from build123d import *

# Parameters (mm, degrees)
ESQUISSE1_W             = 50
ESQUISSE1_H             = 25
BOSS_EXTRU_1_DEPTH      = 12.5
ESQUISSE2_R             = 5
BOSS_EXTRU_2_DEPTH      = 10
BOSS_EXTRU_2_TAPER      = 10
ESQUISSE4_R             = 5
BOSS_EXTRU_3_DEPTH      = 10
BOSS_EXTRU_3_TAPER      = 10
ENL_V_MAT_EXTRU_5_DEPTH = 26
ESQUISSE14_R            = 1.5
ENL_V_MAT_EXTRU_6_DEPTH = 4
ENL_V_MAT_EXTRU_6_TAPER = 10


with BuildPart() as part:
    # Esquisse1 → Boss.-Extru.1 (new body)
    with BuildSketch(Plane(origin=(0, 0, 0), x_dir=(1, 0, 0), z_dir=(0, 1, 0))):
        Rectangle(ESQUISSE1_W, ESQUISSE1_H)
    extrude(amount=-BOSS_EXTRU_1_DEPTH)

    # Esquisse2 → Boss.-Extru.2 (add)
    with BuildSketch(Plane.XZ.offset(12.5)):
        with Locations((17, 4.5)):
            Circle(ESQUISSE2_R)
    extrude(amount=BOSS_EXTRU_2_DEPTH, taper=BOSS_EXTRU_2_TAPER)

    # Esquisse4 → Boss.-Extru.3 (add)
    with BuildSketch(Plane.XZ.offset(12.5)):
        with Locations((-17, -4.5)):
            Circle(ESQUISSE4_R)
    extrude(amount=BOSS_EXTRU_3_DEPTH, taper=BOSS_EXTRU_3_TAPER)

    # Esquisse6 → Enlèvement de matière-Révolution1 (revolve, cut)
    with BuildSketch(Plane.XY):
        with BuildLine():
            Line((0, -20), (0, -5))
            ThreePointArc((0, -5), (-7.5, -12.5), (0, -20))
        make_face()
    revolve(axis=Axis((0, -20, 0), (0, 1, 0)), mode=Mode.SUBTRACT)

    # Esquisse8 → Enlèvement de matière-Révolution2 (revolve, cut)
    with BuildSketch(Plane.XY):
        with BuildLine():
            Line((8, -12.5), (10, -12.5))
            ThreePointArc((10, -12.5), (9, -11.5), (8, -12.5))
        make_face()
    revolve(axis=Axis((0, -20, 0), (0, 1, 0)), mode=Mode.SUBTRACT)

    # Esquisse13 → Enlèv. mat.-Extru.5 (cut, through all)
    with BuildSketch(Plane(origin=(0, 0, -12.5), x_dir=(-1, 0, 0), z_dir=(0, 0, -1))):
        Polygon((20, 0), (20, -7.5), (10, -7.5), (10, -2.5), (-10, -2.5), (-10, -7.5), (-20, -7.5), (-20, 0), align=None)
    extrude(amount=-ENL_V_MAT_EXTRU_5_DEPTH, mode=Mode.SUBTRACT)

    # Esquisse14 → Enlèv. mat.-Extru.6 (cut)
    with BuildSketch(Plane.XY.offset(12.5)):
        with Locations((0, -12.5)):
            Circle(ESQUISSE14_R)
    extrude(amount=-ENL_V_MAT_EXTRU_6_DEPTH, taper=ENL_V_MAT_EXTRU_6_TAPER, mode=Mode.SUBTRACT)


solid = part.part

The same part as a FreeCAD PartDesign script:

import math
import FreeCAD as App
import Part
import Sketcher
from FreeCAD import Vector
Q = App.Units.Quantity

doc = App.newDocument("Part")
params = doc.addObject("Spreadsheet::Sheet", "Params")
for row, (alias, value) in enumerate([
    ("sketch1_width", "50 mm"),
    ("sketch1_height", "25 mm"),
    ("pad1_length", "12.5 mm"),
    ("sketch2_diameter", "10 mm"),
    ("pad2_length", "10 mm"),
    ("pad2_taper", "-10 deg"),
    ("sketch3_diameter", "10 mm"),
    ("pad3_length", "10 mm"),
    ("pad3_taper", "-10 deg"),
    ("sketch4_radius", "7.5 mm"),
    ("groove_angle", "360 deg"),
    ("sketch5_radius", "1 mm"),
    ("groove2_angle", "360 deg"),
    ("sketch6_width", "40 mm"),
    ("sketch6_width2", "10 mm"),
    ("sketch6_height", "5 mm"),
    ("sketch6_height2", "7.5 mm"),
    ("sketch7_diameter", "3 mm"),
    ("pocket2_length", "4 mm"),
    ("pocket2_taper", "-10 deg"),
], start=1):
    params.set(f"A{row}", alias)
    params.set(f"B{row}", "=" + value)
    params.setAlias(f"B{row}", alias)

body = doc.addObject("PartDesign::Body", "Body")

sketch1 = body.newObject("Sketcher::SketchObject", "Sketch")
sketch1.AttachmentSupport = (doc.getObject("XZ_Plane"), [""])
sketch1.MapMode = "FlatFace"
sketch1.addGeometry(Part.LineSegment(Vector(-25, -12, 0), Vector(-25, 12, 0)), False)
sketch1.addGeometry(Part.LineSegment(Vector(-25, 12, 0), Vector(25, 12, 0)), False)
sketch1.addGeometry(Part.LineSegment(Vector(25, 12, 0), Vector(25, -12, 0)), False)
sketch1.addGeometry(Part.LineSegment(Vector(25, -12, 0), Vector(-25, -12, 0)), False)
sketch1.addConstraint(Sketcher.Constraint("Coincident", 0, 2, 1, 1))
sketch1.addConstraint(Sketcher.Constraint("Coincident", 1, 2, 2, 1))
sketch1.addConstraint(Sketcher.Constraint("Coincident", 2, 2, 3, 1))
sketch1.addConstraint(Sketcher.Constraint("Coincident", 3, 2, 0, 1))
sketch1.addConstraint(Sketcher.Constraint("Vertical", 0))
sketch1.addConstraint(Sketcher.Constraint("Horizontal", 1))
sketch1.addConstraint(Sketcher.Constraint("Vertical", 2))
sketch1.addConstraint(Sketcher.Constraint("Horizontal", 3))
sketch1.addConstraint(Sketcher.Constraint("Symmetric", 0, 2, 2, 2, -1, 1))
sketch1.addConstraint(Sketcher.Constraint("DistanceX", 1, 1, 1, 2, Q("50 mm")))
sketch1.addConstraint(Sketcher.Constraint("DistanceY", 0, 1, 0, 2, Q("25 mm")))
sketch1.setExpression("Constraints[9]", "Params.sketch1_width")
sketch1.setExpression("Constraints[10]", "Params.sketch1_height")
pad1 = body.newObject("PartDesign::Pad", "Pad")
pad1.Profile = sketch1
pad1.setExpression("Length", "Params.pad1_length")

sketch2 = body.newObject("Sketcher::SketchObject", "Sketch001")
sketch2.AttachmentSupport = (doc.getObject("XZ_Plane"), [""])
sketch2.MapMode = "FlatFace"
sketch2.AttachmentOffset = App.Placement(Vector(0, 0, 12.5), App.Rotation())
sketch2.addGeometry(Part.Circle(Vector(17, 4, 0), Vector(0, 0, 1), 5), False)
sketch2.addConstraint(Sketcher.Constraint("Diameter", 0, Q("10 mm")))
sketch2.addConstraint(Sketcher.Constraint("DistanceX", -1, 1, 0, 3, Q("17 mm")))
sketch2.addConstraint(Sketcher.Constraint("DistanceY", -1, 1, 0, 3, Q("4.5 mm")))
sketch2.setExpression("Constraints[0]", "Params.sketch2_diameter")
pad2 = body.newObject("PartDesign::Pad", "Pad001")
pad2.Profile = sketch2
pad2.setExpression("Length", "Params.pad2_length")
pad2.setExpression("TaperAngle", "Params.pad2_taper")

sketch3 = body.newObject("Sketcher::SketchObject", "Sketch002")
sketch3.AttachmentSupport = (doc.getObject("XZ_Plane"), [""])
sketch3.MapMode = "FlatFace"
sketch3.AttachmentOffset = App.Placement(Vector(0, 0, 12.5), App.Rotation())
sketch3.addGeometry(Part.Circle(Vector(-17, -4, 0), Vector(0, 0, 1), 5), False)
sketch3.addConstraint(Sketcher.Constraint("Diameter", 0, Q("10 mm")))
sketch3.addConstraint(Sketcher.Constraint("DistanceX", 0, 3, -1, 1, Q("17 mm")))
sketch3.addConstraint(Sketcher.Constraint("DistanceY", 0, 3, -1, 1, Q("4.5 mm")))
sketch3.setExpression("Constraints[0]", "Params.sketch3_diameter")
pad3 = body.newObject("PartDesign::Pad", "Pad002")
pad3.Profile = sketch3
pad3.setExpression("Length", "Params.pad3_length")
pad3.setExpression("TaperAngle", "Params.pad3_taper")

sketch4 = body.newObject("Sketcher::SketchObject", "Sketch003")
sketch4.AttachmentSupport = (doc.getObject("XY_Plane"), [""])
sketch4.MapMode = "FlatFace"
sketch4.addGeometry(Part.LineSegment(Vector(0, -20, 0), Vector(0, -5, 0)), False)
sketch4.addGeometry(Part.ArcOfCircle(Part.Circle(Vector(0, -12, 0), Vector(0, 0, 1), 8), math.radians(90), math.radians(270)), False)
sketch4.addConstraint(Sketcher.Constraint("Coincident", 0, 1, 1, 2))
sketch4.addConstraint(Sketcher.Constraint("Coincident", 1, 1, 0, 2))
sketch4.addConstraint(Sketcher.Constraint("Vertical", 0))
sketch4.addConstraint(Sketcher.Constraint("PointOnObject", 1, 3, -2))
sketch4.addConstraint(Sketcher.Constraint("PointOnObject", 0, 1, -2))
sketch4.addConstraint(Sketcher.Constraint("Radius", 1, Q("7.5 mm")))
sketch4.addConstraint(Sketcher.Constraint("DistanceY", 0, 1, -1, 1, Q("20 mm")))
sketch4.setExpression("Constraints[5]", "Params.sketch4_radius")
groove = body.newObject("PartDesign::Groove", "Groove")
groove.Profile = sketch4
groove.ReferenceAxis = (sketch4, ["V_Axis"])
groove.setExpression("Angle", "Params.groove_angle")

sketch5 = body.newObject("Sketcher::SketchObject", "Sketch004")
sketch5.AttachmentSupport = (doc.getObject("XY_Plane"), [""])
sketch5.MapMode = "FlatFace"
sketch5.addGeometry(Part.LineSegment(Vector(8, -12.5, 0), Vector(10, -12.5, 0)), False)
sketch5.addGeometry(Part.ArcOfCircle(Part.Circle(Vector(9, -12.5, 0), Vector(0, 0, 1), 1), math.radians(0), math.radians(180)), False)
sketch5.addConstraint(Sketcher.Constraint("Coincident", 0, 1, 1, 2))
sketch5.addConstraint(Sketcher.Constraint("Coincident", 1, 1, 0, 2))
sketch5.addConstraint(Sketcher.Constraint("Horizontal", 0))
sketch5.addConstraint(Sketcher.Constraint("Horizontal", 1, 3, 0, 1))
sketch5.addConstraint(Sketcher.Constraint("Radius", 1, Q("1 mm")))
sketch5.addConstraint(Sketcher.Constraint("DistanceX", -1, 1, 1, 3, Q("9 mm")))
sketch5.addConstraint(Sketcher.Constraint("DistanceY", 1, 3, -1, 1, Q("12.5 mm")))
sketch5.setExpression("Constraints[4]", "Params.sketch5_radius")
groove2 = body.newObject("PartDesign::Groove", "Groove001")
groove2.Profile = sketch5
groove2.ReferenceAxis = (sketch5, ["V_Axis"])
groove2.setExpression("Angle", "Params.groove2_angle")

sketch6 = body.newObject("Sketcher::SketchObject", "Sketch005")
sketch6.AttachmentSupport = (doc.getObject("XY_Plane"), [""])
sketch6.MapMode = "FlatFace"
sketch6.AttachmentOffset = App.Placement(Vector(0, 0, -12.5), App.Rotation())
sketch6.addGeometry(Part.LineSegment(Vector(-20, -8, 0), Vector(-20, 0, 0)), False)
sketch6.addGeometry(Part.LineSegment(Vector(-20, 0, 0), Vector(20, 0, 0)), False)
sketch6.addGeometry(Part.LineSegment(Vector(20, 0, 0), Vector(20, -8, 0)), False)
sketch6.addGeometry(Part.LineSegment(Vector(20, -8, 0), Vector(10, -8, 0)), False)
sketch6.addGeometry(Part.LineSegment(Vector(10, -8, 0), Vector(10, -2, 0)), False)
sketch6.addGeometry(Part.LineSegment(Vector(10, -2, 0), Vector(-10, -2, 0)), False)
sketch6.addGeometry(Part.LineSegment(Vector(-10, -2, 0), Vector(-10, -8, 0)), False)
sketch6.addGeometry(Part.LineSegment(Vector(-10, -8, 0), Vector(-20, -8, 0)), False)
sketch6.addConstraint(Sketcher.Constraint("Coincident", 0, 2, 1, 1))
sketch6.addConstraint(Sketcher.Constraint("Coincident", 1, 2, 2, 1))
sketch6.addConstraint(Sketcher.Constraint("Coincident", 2, 2, 3, 1))
sketch6.addConstraint(Sketcher.Constraint("Coincident", 3, 2, 4, 1))
sketch6.addConstraint(Sketcher.Constraint("Coincident", 4, 2, 5, 1))
sketch6.addConstraint(Sketcher.Constraint("Coincident", 5, 2, 6, 1))
sketch6.addConstraint(Sketcher.Constraint("Coincident", 6, 2, 7, 1))
sketch6.addConstraint(Sketcher.Constraint("Coincident", 7, 2, 0, 1))
sketch6.addConstraint(Sketcher.Constraint("Vertical", 0))
sketch6.addConstraint(Sketcher.Constraint("Horizontal", 1))
sketch6.addConstraint(Sketcher.Constraint("Vertical", 2))
sketch6.addConstraint(Sketcher.Constraint("Horizontal", 3))
sketch6.addConstraint(Sketcher.Constraint("Vertical", 4))
sketch6.addConstraint(Sketcher.Constraint("Horizontal", 5))
sketch6.addConstraint(Sketcher.Constraint("Vertical", 6))
sketch6.addConstraint(Sketcher.Constraint("Horizontal", 7))
sketch6.addConstraint(Sketcher.Constraint("Symmetric", 0, 2, 1, 2, -1, 1))
sketch6.addConstraint(Sketcher.Constraint("Symmetric", 3, 2, 6, 2, -2))
sketch6.addConstraint(Sketcher.Constraint("DistanceX", 1, 1, 1, 2, Q("40 mm")))
sketch6.addConstraint(Sketcher.Constraint("DistanceX", 3, 2, 3, 1, Q("10 mm")))
sketch6.addConstraint(Sketcher.Constraint("DistanceY", 4, 1, 4, 2, Q("5 mm")))
sketch6.addConstraint(Sketcher.Constraint("DistanceY", 0, 1, 0, 2, Q("7.5 mm")))
sketch6.setExpression("Constraints[18]", "Params.sketch6_width")
sketch6.setExpression("Constraints[19]", "Params.sketch6_width2")
sketch6.setExpression("Constraints[20]", "Params.sketch6_height")
sketch6.setExpression("Constraints[21]", "Params.sketch6_height2")
pocket1 = body.newObject("PartDesign::Pocket", "Pocket")
pocket1.Profile = sketch6
pocket1.Type = "ThroughAll"
pocket1.Reversed = True

sketch7 = body.newObject("Sketcher::SketchObject", "Sketch006")
sketch7.AttachmentSupport = (doc.getObject("XY_Plane"), [""])
sketch7.MapMode = "FlatFace"
sketch7.AttachmentOffset = App.Placement(Vector(0, 0, 12.5), App.Rotation())
sketch7.addGeometry(Part.Circle(Vector(0, -12.5, 0), Vector(0, 0, 1), 1.5), False)
sketch7.addConstraint(Sketcher.Constraint("PointOnObject", 0, 3, -2))
sketch7.addConstraint(Sketcher.Constraint("Diameter", 0, Q("3 mm")))
sketch7.addConstraint(Sketcher.Constraint("DistanceY", 0, 3, -1, 1, Q("12.5 mm")))
sketch7.setExpression("Constraints[1]", "Params.sketch7_diameter")
pocket2 = body.newObject("PartDesign::Pocket", "Pocket001")
pocket2.Profile = sketch7
pocket2.setExpression("Length", "Params.pocket2_length")
pocket2.setExpression("TaperAngle", "Params.pocket2_taper")

doc.recompute()
